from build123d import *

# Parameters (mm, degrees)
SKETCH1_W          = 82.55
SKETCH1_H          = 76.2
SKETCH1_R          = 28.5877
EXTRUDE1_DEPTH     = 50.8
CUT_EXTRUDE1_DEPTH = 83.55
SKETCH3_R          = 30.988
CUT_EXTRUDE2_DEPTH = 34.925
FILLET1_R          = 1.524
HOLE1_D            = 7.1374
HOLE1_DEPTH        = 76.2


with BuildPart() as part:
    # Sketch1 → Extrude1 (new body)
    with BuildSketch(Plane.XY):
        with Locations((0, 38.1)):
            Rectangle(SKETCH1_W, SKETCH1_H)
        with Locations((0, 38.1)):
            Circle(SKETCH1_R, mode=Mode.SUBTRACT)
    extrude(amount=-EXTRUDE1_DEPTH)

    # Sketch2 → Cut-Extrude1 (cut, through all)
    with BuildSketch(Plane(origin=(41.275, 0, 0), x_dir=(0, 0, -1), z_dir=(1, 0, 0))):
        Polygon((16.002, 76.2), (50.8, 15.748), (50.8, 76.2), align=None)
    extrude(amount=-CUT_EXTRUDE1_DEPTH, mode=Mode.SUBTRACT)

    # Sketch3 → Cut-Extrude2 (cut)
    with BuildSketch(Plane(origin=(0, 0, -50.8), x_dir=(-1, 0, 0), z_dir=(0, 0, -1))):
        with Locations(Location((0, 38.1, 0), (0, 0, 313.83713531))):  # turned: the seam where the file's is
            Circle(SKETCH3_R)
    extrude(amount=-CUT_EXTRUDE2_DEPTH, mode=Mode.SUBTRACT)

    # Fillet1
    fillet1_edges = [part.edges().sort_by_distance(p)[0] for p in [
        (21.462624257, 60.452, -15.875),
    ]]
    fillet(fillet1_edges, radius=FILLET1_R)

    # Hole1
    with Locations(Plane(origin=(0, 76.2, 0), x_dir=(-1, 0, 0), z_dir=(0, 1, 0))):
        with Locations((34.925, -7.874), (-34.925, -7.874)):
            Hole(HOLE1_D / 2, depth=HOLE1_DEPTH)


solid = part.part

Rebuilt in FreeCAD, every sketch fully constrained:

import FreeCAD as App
import Part
import Sketcher

V = App.Vector
Q = App.Units.Quantity


def edges_at(feature, points):
    """Names of the edges that pass closest to the given points."""
    edges = feature.Shape.Edges
    near = lambda p: min(range(len(edges)), key=lambda i: edges[i].distToShape(Part.Vertex(*p))[0])
    return sorted({f"Edge{near(p) + 1}" for p in points})


def add_polygon(sketch, points):
    """Adds a closed chain of lines whose ends are joined by coincident constraints."""
    first, n = sketch.GeometryCount, len(points)
    for a, b in zip(points, points[1:] + points[:1]):
        sketch.addGeometry(Part.LineSegment(App.Vector(*a, 0), App.Vector(*b, 0)), False)
    for i in range(n):
        sketch.addConstraint(Sketcher.Constraint("Coincident", first + i, 2, first + (i + 1) % n, 1))

doc = App.newDocument("Part")
body = doc.addObject("PartDesign::Body", "Body")

# Sketch on XY plane
sketch1 = body.newObject("Sketcher::SketchObject", "Sketch")
sketch1.AttachmentSupport = (doc.getObject("XY_Plane"), [""])
sketch1.MapMode = "FlatFace"
add_polygon(sketch1, [(-41.275, 76.2), (-41.275, 0), (41.275, 0), (41.275, 76.2)])  # lines 0-3
sketch1.addGeometry(Part.Circle(V(0, 38.1, 0), V(0, 0, 1), 28.5877), False)  # 4
sketch1.addConstraint(Sketcher.Constraint("Vertical", 0))
sketch1.addConstraint(Sketcher.Constraint("Horizontal", 1))
sketch1.addConstraint(Sketcher.Constraint("Vertical", 2))
sketch1.addConstraint(Sketcher.Constraint("Horizontal", 3))
sketch1.addConstraint(Sketcher.Constraint("Symmetric", 0, 2, 1, 2, -1, 1))
sketch1.addConstraint(Sketcher.Constraint("PointOnObject", 4, 3, -2))
sketch1.addConstraint(Sketcher.Constraint("DistanceY", 0, 2, 0, 1, Q("3 in")))
sketch1.addConstraint(Sketcher.Constraint("Diameter", 4, Q("2.251 in")))
sketch1.addConstraint(Sketcher.Constraint("DistanceX", 1, 1, 1, 2, Q("3.25 in")))
sketch1.addConstraint(Sketcher.Constraint("DistanceY", -1, 1, 4, 3, Q("1.5 in")))
pad1 = body.newObject("PartDesign::Pad", "Pad")
pad1.Profile = sketch1
pad1.Length = Q("2 in")
pad1.Reversed = True

# Sketch on YZ plane
sketch2 = body.newObject("Sketcher::SketchObject", "Sketch001")
sketch2.AttachmentSupport = (doc.getObject("YZ_Plane"), [""])
sketch2.MapMode = "FlatFace"
sketch2.AttachmentOffset = App.Placement(V(0, 0, 1.625 * 25.4), App.Rotation())
add_polygon(sketch2, [(76.2, -16.002), (15.748, -50.8), (76.2, -50.8)])  # lines 0-2
sketch2.addConstraint(Sketcher.Constraint("Horizontal", 1))
sketch2.addConstraint(Sketcher.Constraint("Vertical", 2))
sketch2.addConstraint(Sketcher.Constraint("DistanceY", 0, 2, -1, 1, Q("2 in")))
sketch2.addConstraint(Sketcher.Constraint("DistanceX", -1, 1, 1, 2, Q("3 in")))
sketch2.addConstraint(Sketcher.Constraint("DistanceX", 1, 1, 1, 2, Q("2.38 in")))
sketch2.addConstraint(Sketcher.Constraint("DistanceY", 2, 1, 2, 2, Q("1.37 in")))
pocket1 = body.newObject("PartDesign::Pocket", "Pocket")
pocket1.Profile = sketch2
pocket1.Type = "ThroughAll"

# Sketch on XY plane
sketch3 = body.newObject("Sketcher::SketchObject", "Sketch002")
sketch3.AttachmentSupport = (doc.getObject("XY_Plane"), [""])
sketch3.MapMode = "FlatFace"
sketch3.AttachmentOffset = App.Placement(V(0, 0, -2 * 25.4), App.Rotation())
sketch3.addGeometry(Part.Circle(V(0, 38.1, 0), V(0, 0, 1), 30.988), False)
sketch3.addConstraint(Sketcher.Constraint("PointOnObject", 0, 3, -2))
sketch3.addConstraint(Sketcher.Constraint("Diameter", 0, Q("2.44 in")))
sketch3.addConstraint(Sketcher.Constraint("DistanceY", -1, 1, 0, 3, Q("1.5 in")))
pocket2 = body.newObject("PartDesign::Pocket", "Pocket001")
pocket2.Profile = sketch3
pocket2.Length = Q("1.375 in")
pocket2.Reversed = True
doc.recompute()

fillet = body.newObject("PartDesign::Fillet", "Fillet")
fillet.Base = (pocket2, edges_at(pocket2, [(21.463, 60.452, -15.875)]))
fillet.Radius = Q("0.06 in")

# Sketch on XZ plane
sketch4 = body.newObject("Sketcher::SketchObject", "Sketch003")
sketch4.AttachmentSupport = (doc.getObject("XZ_Plane"), [""])
sketch4.MapMode = "FlatFace"
sketch4.AttachmentOffset = App.Placement(V(0, 0, -3 * 25.4), App.Rotation())
sketch4.addGeometry(Part.Circle(V(-34.925, -7.874, 0), V(0, 0, 1), 3.5687), False)
sketch4.addGeometry(Part.Circle(V(34.925, -7.874, 0), V(0, 0, 1), 3.5687), False)
sketch4.addConstraint(Sketcher.Constraint("Equal", 0, 1))
sketch4.addConstraint(Sketcher.Constraint("Symmetric", 0, 3, 1, 3, -2))
sketch4.addConstraint(Sketcher.Constraint("Diameter", 0, Q("0.281 in")))
sketch4.addConstraint(Sketcher.Constraint("DistanceY", 0, 3, -1, 1, Q("0.31 in")))
sketch4.addConstraint(Sketcher.Constraint("DistanceX", 0, 3, 1, 3, Q("2.75 in")))
doc.recompute()
hole = body.newObject("PartDesign::Hole", "Hole")
hole.Profile = sketch4
hole.ThreadType = "None"
hole.Diameter = Q("0.281 in")
hole.DepthType = "Dimension"
hole.Depth = Q("3 in")
hole.DrillPoint = "Flat"
hole.Reversed = True

doc.recompute()
